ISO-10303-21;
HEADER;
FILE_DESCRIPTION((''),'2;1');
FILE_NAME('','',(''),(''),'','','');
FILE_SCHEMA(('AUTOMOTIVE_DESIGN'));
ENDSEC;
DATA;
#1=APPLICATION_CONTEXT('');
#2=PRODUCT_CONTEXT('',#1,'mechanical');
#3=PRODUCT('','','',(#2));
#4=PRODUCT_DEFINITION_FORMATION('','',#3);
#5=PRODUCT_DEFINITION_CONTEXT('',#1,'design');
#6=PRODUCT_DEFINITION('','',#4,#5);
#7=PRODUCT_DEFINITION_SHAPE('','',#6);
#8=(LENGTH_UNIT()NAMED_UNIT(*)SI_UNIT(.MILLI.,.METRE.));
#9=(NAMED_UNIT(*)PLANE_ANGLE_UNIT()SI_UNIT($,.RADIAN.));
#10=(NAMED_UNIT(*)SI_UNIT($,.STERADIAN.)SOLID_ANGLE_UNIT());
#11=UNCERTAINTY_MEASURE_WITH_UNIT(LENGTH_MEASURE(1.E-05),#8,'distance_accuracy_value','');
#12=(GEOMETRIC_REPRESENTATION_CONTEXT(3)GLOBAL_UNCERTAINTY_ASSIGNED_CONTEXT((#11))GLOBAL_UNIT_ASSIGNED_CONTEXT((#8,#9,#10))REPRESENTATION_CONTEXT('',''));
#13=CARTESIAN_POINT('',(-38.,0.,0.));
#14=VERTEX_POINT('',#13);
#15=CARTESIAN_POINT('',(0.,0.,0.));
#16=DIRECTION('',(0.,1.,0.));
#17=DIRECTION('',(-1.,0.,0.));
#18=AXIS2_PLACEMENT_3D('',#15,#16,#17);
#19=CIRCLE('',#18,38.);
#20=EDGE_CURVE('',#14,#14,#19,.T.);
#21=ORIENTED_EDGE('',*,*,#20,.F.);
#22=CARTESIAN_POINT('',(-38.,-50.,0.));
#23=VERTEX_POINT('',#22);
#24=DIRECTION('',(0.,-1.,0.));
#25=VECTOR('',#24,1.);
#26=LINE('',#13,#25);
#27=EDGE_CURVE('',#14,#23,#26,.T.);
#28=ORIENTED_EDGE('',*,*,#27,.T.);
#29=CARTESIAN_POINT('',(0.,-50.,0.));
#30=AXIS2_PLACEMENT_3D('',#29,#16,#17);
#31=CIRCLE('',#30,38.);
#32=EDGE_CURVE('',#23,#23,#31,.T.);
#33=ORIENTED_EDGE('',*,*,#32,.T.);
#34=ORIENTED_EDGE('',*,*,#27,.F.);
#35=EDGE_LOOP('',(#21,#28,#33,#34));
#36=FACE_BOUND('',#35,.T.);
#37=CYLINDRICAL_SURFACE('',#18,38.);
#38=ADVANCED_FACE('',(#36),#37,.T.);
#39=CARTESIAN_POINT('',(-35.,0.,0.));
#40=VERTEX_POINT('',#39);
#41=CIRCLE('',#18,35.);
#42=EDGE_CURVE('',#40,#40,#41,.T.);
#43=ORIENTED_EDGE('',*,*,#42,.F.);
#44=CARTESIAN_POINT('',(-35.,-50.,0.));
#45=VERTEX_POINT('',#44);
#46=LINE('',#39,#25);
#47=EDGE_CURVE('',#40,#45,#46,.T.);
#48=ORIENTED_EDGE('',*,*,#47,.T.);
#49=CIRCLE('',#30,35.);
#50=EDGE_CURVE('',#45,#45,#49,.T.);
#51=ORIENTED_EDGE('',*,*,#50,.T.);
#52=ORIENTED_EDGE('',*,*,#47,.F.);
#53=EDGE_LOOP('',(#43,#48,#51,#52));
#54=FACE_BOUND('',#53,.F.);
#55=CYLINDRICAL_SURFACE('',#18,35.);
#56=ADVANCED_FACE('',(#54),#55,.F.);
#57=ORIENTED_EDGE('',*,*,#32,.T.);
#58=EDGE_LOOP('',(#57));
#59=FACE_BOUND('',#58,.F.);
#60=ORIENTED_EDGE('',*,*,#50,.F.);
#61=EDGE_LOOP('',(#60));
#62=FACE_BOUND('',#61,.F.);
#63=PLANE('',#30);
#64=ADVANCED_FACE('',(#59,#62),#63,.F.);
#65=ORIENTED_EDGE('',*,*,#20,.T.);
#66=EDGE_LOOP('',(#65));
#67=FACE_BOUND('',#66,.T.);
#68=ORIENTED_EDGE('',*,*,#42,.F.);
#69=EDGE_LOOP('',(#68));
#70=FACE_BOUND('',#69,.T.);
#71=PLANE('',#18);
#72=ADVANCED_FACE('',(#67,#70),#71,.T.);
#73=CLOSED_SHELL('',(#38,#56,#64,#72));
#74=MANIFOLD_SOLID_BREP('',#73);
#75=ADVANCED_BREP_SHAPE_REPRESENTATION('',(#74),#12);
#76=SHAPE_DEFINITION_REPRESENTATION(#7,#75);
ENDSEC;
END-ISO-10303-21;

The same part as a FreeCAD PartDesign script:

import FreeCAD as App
import Part
import Sketcher
from FreeCAD import Vector

doc = App.newDocument("Part")
params = doc.addObject("Spreadsheet::Sheet", "Params")
for row, (alias, value) in enumerate([
    ("sketch1_diameter", "76 mm"),
    ("sketch1_diameter2", "70 mm"),
    ("pad1_length", "50 mm"),
], start=1):
    params.set(f"A{row}", alias)
    params.set(f"B{row}", "=" + value)
    params.setAlias(f"B{row}", alias)

body = doc.addObject("PartDesign::Body", "Body")

# Sketch on XZ plane
sketch1 = body.newObject("Sketcher::SketchObject", "Sketch")
sketch1.AttachmentSupport = (doc.getObject("XZ_Plane"), [""])
sketch1.MapMode = "FlatFace"
sketch1.addGeometry(Part.Circle(Vector(0, 0, 0), Vector(0, 0, 1), 38), False)
sketch1.addGeometry(Part.Circle(Vector(0, 0, 0), Vector(0, 0, 1), 35), False)
sketch1.addConstraint(Sketcher.Constraint("Coincident", 0, 3, -1, 1))
sketch1.addConstraint(Sketcher.Constraint("Coincident", 1, 3, -1, 1))
sketch1.addConstraint(Sketcher.Constraint("Diameter", 0, 76.0))
sketch1.addConstraint(Sketcher.Constraint("Diameter", 1, 70.0))
sketch1.setExpression("Constraints[2]", "Params.sketch1_diameter")
sketch1.setExpression("Constraints[3]", "Params.sketch1_diameter2")
pad1 = body.newObject("PartDesign::Pad", "Pad")
pad1.Profile = sketch1
pad1.setExpression("Length", "Params.pad1_length")

doc.recompute()
